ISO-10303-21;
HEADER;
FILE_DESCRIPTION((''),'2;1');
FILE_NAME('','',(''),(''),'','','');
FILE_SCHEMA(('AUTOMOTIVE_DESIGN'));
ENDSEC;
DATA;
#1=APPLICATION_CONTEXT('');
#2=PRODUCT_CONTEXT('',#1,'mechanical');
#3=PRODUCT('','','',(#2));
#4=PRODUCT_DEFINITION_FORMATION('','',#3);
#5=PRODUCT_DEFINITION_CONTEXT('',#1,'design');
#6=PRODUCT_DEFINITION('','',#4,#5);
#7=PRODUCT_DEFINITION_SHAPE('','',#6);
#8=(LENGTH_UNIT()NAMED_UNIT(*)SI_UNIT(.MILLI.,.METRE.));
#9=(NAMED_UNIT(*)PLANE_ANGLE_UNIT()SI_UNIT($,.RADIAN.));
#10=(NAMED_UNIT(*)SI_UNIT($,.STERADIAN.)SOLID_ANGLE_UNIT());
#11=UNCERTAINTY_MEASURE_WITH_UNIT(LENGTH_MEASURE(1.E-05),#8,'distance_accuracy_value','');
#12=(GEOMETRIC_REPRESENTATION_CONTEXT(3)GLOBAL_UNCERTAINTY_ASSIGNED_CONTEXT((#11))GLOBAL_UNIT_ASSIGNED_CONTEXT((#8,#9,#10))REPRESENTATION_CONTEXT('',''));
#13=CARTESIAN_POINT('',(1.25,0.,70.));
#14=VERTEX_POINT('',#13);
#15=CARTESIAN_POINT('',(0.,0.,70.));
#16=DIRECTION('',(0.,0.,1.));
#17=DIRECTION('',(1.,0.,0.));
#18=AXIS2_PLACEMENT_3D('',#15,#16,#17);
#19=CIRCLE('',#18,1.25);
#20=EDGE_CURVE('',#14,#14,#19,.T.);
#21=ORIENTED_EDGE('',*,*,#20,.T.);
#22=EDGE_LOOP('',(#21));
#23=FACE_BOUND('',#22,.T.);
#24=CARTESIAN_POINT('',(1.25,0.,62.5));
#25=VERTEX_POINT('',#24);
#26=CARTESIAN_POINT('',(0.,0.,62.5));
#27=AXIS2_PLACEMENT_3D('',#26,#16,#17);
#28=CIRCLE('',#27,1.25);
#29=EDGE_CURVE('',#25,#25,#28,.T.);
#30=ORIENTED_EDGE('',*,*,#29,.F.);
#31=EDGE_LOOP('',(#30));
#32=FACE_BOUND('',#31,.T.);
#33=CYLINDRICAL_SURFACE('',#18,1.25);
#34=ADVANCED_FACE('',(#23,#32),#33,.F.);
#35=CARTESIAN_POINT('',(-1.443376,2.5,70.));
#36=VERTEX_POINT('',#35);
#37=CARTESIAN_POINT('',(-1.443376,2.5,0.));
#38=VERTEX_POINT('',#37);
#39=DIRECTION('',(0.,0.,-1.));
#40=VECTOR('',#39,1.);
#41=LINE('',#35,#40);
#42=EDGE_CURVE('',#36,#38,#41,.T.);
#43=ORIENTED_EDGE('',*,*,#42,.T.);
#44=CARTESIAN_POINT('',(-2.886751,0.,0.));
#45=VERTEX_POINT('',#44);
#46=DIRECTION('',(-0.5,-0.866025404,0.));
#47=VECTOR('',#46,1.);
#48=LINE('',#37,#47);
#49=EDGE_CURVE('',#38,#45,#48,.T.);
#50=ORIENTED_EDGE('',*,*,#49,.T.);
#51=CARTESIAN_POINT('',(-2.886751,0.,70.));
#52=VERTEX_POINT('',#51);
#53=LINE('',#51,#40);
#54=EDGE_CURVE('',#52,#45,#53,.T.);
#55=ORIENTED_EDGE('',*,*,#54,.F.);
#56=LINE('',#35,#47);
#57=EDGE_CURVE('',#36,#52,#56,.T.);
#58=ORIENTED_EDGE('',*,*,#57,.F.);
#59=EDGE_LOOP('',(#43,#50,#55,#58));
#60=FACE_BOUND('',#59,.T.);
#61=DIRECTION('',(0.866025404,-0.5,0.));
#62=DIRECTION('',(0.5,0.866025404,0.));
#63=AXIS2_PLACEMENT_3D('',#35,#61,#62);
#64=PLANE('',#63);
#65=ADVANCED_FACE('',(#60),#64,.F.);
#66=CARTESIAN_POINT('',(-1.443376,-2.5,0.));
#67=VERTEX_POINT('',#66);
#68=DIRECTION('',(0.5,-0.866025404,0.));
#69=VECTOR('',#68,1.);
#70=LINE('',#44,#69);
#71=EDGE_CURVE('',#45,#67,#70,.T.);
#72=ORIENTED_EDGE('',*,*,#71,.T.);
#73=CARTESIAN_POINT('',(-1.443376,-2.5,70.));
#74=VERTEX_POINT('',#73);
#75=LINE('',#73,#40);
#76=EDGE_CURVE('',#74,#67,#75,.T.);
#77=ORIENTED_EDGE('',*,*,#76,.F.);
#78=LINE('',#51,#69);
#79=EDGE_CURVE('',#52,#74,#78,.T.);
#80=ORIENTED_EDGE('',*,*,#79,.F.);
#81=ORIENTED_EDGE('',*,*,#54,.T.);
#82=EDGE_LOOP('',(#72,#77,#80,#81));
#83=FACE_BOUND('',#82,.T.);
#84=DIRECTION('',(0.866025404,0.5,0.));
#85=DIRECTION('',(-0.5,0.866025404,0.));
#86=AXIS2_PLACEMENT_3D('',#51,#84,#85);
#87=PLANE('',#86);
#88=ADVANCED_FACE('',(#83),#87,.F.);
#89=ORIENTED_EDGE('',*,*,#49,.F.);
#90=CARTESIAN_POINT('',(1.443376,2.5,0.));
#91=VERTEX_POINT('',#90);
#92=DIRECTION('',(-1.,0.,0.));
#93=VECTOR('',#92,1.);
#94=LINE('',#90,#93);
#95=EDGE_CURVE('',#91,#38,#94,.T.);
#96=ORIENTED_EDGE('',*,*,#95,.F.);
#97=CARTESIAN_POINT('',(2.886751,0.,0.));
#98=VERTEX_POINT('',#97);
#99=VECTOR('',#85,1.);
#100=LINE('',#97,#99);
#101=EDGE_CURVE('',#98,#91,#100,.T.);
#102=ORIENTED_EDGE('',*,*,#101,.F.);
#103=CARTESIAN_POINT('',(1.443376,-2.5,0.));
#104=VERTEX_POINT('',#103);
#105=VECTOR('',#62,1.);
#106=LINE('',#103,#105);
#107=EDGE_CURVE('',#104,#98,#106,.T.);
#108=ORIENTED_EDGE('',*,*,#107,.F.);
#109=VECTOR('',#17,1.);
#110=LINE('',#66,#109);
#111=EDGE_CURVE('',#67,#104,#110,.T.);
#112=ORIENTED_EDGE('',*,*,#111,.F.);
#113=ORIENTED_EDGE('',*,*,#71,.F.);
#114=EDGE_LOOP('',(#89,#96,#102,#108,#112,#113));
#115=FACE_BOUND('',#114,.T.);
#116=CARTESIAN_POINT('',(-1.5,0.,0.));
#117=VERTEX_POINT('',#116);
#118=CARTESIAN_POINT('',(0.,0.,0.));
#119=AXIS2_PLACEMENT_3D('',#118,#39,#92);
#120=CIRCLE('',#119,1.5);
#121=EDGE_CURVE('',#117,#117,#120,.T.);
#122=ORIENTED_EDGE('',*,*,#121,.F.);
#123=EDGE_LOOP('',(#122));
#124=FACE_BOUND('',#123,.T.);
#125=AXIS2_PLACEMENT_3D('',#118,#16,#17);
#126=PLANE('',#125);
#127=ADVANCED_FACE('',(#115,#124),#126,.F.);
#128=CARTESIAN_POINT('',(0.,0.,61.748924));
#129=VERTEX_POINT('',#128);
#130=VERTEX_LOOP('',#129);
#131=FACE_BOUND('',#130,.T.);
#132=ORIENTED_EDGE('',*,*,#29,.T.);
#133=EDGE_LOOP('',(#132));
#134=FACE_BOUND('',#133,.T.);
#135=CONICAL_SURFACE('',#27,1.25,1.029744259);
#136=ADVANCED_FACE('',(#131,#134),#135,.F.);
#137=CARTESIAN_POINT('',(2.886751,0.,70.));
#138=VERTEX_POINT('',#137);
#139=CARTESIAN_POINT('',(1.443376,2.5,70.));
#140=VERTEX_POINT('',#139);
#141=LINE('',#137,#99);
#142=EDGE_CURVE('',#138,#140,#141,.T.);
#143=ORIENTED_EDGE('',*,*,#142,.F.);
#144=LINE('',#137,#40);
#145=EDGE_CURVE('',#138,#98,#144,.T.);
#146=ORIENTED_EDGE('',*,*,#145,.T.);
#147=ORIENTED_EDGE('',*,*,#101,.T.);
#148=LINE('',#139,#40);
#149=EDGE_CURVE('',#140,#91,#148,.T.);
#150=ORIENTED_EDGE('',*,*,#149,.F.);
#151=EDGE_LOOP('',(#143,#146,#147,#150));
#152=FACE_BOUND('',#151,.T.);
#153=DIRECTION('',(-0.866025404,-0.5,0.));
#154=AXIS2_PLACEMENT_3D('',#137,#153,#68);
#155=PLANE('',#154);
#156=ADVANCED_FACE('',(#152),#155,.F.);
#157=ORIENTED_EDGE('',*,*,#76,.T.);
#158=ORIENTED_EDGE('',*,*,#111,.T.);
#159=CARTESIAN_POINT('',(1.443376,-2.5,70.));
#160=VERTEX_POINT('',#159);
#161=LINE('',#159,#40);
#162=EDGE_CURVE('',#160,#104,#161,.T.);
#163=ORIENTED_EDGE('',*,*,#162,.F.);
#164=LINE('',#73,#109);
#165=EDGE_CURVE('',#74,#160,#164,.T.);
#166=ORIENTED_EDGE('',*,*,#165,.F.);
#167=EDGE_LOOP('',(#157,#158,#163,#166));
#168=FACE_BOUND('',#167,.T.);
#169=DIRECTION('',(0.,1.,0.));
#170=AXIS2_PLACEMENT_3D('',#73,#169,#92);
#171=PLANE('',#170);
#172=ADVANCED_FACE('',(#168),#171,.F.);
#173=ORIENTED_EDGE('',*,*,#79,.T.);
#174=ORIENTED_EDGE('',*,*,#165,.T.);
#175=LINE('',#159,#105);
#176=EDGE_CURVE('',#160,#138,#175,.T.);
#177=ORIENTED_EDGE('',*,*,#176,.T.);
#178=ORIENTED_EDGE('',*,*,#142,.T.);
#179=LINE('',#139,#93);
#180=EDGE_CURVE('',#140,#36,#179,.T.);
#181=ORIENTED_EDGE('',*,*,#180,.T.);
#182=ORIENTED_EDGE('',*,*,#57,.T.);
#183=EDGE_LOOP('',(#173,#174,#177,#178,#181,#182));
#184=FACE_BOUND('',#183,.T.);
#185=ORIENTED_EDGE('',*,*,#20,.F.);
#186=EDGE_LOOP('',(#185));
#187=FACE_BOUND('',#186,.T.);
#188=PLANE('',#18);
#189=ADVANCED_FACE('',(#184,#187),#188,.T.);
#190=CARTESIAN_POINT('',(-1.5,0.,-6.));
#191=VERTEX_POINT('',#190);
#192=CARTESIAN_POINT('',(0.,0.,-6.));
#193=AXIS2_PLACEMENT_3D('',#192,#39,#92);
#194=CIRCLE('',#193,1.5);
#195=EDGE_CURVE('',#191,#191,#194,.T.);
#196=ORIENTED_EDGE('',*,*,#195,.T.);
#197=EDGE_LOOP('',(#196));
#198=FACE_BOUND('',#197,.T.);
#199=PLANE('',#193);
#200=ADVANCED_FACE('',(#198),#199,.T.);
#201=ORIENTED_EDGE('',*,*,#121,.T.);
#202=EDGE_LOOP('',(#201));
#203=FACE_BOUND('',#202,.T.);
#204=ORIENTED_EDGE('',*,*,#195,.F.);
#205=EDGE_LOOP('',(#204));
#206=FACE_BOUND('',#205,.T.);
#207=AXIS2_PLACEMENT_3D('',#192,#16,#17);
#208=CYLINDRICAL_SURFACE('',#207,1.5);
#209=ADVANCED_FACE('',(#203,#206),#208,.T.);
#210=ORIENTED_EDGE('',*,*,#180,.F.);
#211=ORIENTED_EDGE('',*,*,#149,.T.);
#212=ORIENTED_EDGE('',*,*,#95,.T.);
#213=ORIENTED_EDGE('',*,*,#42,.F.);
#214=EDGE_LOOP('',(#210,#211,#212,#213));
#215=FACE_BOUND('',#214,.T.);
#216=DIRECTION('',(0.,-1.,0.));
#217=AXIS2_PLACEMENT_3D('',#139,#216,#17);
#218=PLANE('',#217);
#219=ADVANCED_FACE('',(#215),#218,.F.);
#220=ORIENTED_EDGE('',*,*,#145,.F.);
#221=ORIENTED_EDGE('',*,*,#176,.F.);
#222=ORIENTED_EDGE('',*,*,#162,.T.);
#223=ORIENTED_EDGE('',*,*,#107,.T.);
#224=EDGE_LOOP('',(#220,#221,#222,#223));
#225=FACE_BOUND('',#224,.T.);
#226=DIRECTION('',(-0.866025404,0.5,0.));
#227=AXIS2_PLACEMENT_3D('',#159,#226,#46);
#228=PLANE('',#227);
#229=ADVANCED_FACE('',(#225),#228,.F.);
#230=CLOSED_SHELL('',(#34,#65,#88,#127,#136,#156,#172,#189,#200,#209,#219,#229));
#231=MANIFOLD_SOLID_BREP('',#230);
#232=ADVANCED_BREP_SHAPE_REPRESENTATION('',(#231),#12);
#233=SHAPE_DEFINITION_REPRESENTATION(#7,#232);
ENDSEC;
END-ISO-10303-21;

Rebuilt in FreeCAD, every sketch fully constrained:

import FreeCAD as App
import Part
import Sketcher
Q = App.Units.Quantity


def add_polygon(sketch, points):
    """Adds a closed chain of lines whose ends are joined by coincident constraints."""
    first, n = sketch.GeometryCount, len(points)
    for a, b in zip(points, points[1:] + points[:1]):
        sketch.addGeometry(Part.LineSegment(App.Vector(*a, 0), App.Vector(*b, 0)), False)
    for i in range(n):
        sketch.addConstraint(Sketcher.Constraint("Coincident", first + i, 2, first + (i + 1) % n, 1))

doc = App.newDocument("Part")
params = doc.addObject("Spreadsheet::Sheet", "Params")
for row, (alias, value) in enumerate([
    ("pad1_length", "70 mm"),
    ("sketch2_diameter", "3 mm"),
    ("pad2_length", "6 mm"),
    ("sketch3_diameter", "2.5 mm"),
    ("hole_diameter", "2.5 mm"),
    ("hole_depth", "7.5 mm"),
], start=1):
    params.set(f"A{row}", alias)
    params.set(f"B{row}", "=" + value)
    params.setAlias(f"B{row}", alias)

body = doc.addObject("PartDesign::Body", "Body")

# Sketch on XY plane
sketch1 = body.newObject("Sketcher::SketchObject", "Sketch")
sketch1.AttachmentSupport = (doc.getObject("XY_Plane"), [""])
sketch1.MapMode = "FlatFace"
add_polygon(sketch1, [(-1.443376, 2.5), (-2.886751, 0), (-1.443376, -2.5), (1.443376, -2.5), (2.886751, 0), (1.443376, 2.5)])  # lines 0-5
sketch1.addConstraint(Sketcher.Constraint("Horizontal", 2))
sketch1.addConstraint(Sketcher.Constraint("Horizontal", 5))
sketch1.addConstraint(Sketcher.Constraint("Symmetric", 0, 2, 3, 2, -1, 1))
sketch1.addConstraint(Sketcher.Constraint("Symmetric", 1, 2, 4, 2, -1, 1))
sketch1.addConstraint(Sketcher.Constraint("PointOnObject", 0, 2, -1))
sketch1.addConstraint(Sketcher.Constraint("Parallel", 0, 3))
sketch1.addConstraint(Sketcher.Constraint("Vertical", 2, 2, 4, 2))
sketch1.addConstraint(Sketcher.Constraint("Angle", 0, Q("-120 deg")))
sketch1.addConstraint(Sketcher.Constraint("DistanceY", 2, 2, 4, 2, Q("5 mm")))
sketch1.addConstraint(Sketcher.Constraint("DistanceX", 2, 1, 2, 2, Q("2.886751 mm")))
pad1 = body.newObject("PartDesign::Pad", "Pad")
pad1.Profile = sketch1
pad1.setExpression("Length", "Params.pad1_length")

# Sketch on XY plane
sketch2 = body.newObject("Sketcher::SketchObject", "Sketch001")
sketch2.AttachmentSupport = (doc.getObject("XY_Plane"), [""])
sketch2.MapMode = "FlatFace"
sketch2.addGeometry(Part.Circle(App.Vector(0, 0, 0), App.Vector(0, 0, 1), 1.5), False)
sketch2.addConstraint(Sketcher.Constraint("Coincident", 0, 3, -1, 1))
sketch2.addConstraint(Sketcher.Constraint("Diameter", 0, Q("3 mm")))
sketch2.setExpression("Constraints[1]", "Params.sketch2_diameter")
pad2 = body.newObject("PartDesign::Pad", "Pad001")
pad2.Profile = sketch2
pad2.setExpression("Length", "Params.pad2_length")
pad2.Reversed = True

# Sketch on XY plane
sketch3 = body.newObject("Sketcher::SketchObject", "Sketch002")
sketch3.AttachmentSupport = (doc.getObject("XY_Plane"), [""])
sketch3.MapMode = "FlatFace"
sketch3.AttachmentOffset = App.Placement(App.Vector(0, 0, 70), App.Rotation())
sketch3.addGeometry(Part.Circle(App.Vector(0, 0, 0), App.Vector(0, 0, 1), 1.25), False)
sketch3.addConstraint(Sketcher.Constraint("Coincident", 0, 3, -1, 1))
sketch3.addConstraint(Sketcher.Constraint("Diameter", 0, Q("2.5 mm")))
sketch3.setExpression("Constraints[1]", "Params.sketch3_diameter")
doc.recompute()
hole = body.newObject("PartDesign::Hole", "Hole")
hole.Profile = sketch3
hole.ThreadType = "None"
hole.setExpression("Diameter", "Params.hole_diameter")
hole.DepthType = "Dimension"
hole.setExpression("Depth", "Params.hole_depth")
hole.DrillPoint = "Angled"
hole.DrillPointAngle = 118

doc.recompute()
